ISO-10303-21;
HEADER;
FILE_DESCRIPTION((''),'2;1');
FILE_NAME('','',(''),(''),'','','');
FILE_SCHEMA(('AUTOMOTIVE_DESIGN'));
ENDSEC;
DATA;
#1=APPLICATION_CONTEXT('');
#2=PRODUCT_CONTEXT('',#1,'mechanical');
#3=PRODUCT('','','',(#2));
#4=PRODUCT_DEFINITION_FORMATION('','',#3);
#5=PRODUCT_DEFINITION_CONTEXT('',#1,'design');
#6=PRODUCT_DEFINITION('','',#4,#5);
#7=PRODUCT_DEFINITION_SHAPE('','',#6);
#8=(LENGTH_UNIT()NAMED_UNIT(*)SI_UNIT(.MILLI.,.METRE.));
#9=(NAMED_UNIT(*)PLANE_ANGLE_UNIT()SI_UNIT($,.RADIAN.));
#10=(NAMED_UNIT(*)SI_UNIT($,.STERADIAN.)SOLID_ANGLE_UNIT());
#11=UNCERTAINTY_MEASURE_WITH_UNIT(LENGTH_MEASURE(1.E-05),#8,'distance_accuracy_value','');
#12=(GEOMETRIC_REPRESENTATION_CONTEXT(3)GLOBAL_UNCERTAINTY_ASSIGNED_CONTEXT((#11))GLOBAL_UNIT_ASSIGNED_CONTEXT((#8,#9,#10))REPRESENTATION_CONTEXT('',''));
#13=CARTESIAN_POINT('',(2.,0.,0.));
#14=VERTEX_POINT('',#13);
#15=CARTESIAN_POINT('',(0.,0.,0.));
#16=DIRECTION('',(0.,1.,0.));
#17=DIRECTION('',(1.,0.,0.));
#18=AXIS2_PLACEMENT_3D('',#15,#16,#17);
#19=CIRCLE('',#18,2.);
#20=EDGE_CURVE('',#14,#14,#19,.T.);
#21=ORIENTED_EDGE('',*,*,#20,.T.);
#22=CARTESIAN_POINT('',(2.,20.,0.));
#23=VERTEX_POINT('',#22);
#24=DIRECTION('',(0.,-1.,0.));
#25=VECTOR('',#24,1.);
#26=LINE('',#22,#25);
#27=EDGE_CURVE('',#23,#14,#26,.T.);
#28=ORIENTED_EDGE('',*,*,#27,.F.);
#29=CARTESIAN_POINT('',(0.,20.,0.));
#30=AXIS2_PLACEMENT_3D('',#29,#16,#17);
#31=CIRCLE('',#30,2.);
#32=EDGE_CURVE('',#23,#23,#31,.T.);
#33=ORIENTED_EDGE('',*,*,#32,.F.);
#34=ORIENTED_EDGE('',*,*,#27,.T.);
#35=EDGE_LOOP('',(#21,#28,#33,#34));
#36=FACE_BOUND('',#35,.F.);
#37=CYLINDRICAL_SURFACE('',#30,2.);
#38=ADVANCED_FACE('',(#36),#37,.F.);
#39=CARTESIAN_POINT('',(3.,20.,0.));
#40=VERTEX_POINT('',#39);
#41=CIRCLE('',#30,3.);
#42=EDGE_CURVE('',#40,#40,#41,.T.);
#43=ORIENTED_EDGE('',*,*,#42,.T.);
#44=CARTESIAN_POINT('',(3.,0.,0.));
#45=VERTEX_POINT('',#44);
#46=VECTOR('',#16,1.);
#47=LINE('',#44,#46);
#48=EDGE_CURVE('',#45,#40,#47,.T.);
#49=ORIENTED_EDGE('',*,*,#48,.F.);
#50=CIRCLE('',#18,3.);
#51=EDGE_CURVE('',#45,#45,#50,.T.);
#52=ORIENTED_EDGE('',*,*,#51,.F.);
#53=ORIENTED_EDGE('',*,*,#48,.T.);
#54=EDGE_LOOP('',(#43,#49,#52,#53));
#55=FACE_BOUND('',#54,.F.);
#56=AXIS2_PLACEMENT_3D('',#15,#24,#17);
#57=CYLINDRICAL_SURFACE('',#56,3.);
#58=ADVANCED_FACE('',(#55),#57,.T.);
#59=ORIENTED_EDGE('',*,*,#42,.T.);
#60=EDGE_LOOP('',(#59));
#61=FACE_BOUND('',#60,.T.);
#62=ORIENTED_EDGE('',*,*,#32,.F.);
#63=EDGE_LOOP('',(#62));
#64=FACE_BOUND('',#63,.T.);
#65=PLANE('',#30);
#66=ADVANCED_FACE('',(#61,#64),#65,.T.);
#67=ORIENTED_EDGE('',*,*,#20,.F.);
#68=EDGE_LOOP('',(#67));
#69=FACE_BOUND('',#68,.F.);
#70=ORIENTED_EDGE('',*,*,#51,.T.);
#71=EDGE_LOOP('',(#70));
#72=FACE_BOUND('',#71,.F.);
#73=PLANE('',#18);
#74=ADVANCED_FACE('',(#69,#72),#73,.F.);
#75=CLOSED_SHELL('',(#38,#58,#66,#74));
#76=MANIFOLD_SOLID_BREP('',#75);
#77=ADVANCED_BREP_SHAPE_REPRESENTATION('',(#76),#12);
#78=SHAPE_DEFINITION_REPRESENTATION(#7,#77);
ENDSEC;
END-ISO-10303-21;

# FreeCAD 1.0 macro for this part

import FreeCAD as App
import Part
import Sketcher

doc = App.newDocument("Part")
body = doc.addObject("PartDesign::Body", "Body")

sketch1 = doc.addObject("Sketcher::SketchObject", "Sketch")
body.addObject(sketch1)
sketch1.AttachmentSupport = (doc.XZ_Plane, [""])
sketch1.MapMode = "FlatFace"
sketch1.addGeometry(Part.Circle(App.Vector(0, 0, 0), App.Vector(0, 0, 1), 3), False)
sketch1.addConstraint(Sketcher.Constraint("Coincident", 0, 3, -1, 1))
sketch1.addConstraint(Sketcher.Constraint("Diameter", 0, 6.0))
pad1 = doc.addObject("PartDesign::Pad", "Pad")
body.addObject(pad1)
pad1.Profile = sketch1
pad1.Length = 20
pad1.Reversed = True

sketch2 = doc.addObject("Sketcher::SketchObject", "Sketch001")
body.addObject(sketch2)
sketch2.AttachmentSupport = (doc.XZ_Plane, [""])
sketch2.MapMode = "FlatFace"
sketch2.AttachmentOffset = App.Placement(App.Vector(0, 0, -20), App.Rotation())
sketch2.addGeometry(Part.Circle(App.Vector(0, 0, 0), App.Vector(0, 0, 1), 2), False)
sketch2.addConstraint(Sketcher.Constraint("Coincident", 0, 3, -1, 1))
sketch2.addConstraint(Sketcher.Constraint("Diameter", 0, 4.0))
pocket1 = doc.addObject("PartDesign::Pocket", "Pocket")
body.addObject(pocket1)
pocket1.Profile = sketch2
pocket1.Type = "ThroughAll"
pocket1.Reversed = True

doc.recompute()
